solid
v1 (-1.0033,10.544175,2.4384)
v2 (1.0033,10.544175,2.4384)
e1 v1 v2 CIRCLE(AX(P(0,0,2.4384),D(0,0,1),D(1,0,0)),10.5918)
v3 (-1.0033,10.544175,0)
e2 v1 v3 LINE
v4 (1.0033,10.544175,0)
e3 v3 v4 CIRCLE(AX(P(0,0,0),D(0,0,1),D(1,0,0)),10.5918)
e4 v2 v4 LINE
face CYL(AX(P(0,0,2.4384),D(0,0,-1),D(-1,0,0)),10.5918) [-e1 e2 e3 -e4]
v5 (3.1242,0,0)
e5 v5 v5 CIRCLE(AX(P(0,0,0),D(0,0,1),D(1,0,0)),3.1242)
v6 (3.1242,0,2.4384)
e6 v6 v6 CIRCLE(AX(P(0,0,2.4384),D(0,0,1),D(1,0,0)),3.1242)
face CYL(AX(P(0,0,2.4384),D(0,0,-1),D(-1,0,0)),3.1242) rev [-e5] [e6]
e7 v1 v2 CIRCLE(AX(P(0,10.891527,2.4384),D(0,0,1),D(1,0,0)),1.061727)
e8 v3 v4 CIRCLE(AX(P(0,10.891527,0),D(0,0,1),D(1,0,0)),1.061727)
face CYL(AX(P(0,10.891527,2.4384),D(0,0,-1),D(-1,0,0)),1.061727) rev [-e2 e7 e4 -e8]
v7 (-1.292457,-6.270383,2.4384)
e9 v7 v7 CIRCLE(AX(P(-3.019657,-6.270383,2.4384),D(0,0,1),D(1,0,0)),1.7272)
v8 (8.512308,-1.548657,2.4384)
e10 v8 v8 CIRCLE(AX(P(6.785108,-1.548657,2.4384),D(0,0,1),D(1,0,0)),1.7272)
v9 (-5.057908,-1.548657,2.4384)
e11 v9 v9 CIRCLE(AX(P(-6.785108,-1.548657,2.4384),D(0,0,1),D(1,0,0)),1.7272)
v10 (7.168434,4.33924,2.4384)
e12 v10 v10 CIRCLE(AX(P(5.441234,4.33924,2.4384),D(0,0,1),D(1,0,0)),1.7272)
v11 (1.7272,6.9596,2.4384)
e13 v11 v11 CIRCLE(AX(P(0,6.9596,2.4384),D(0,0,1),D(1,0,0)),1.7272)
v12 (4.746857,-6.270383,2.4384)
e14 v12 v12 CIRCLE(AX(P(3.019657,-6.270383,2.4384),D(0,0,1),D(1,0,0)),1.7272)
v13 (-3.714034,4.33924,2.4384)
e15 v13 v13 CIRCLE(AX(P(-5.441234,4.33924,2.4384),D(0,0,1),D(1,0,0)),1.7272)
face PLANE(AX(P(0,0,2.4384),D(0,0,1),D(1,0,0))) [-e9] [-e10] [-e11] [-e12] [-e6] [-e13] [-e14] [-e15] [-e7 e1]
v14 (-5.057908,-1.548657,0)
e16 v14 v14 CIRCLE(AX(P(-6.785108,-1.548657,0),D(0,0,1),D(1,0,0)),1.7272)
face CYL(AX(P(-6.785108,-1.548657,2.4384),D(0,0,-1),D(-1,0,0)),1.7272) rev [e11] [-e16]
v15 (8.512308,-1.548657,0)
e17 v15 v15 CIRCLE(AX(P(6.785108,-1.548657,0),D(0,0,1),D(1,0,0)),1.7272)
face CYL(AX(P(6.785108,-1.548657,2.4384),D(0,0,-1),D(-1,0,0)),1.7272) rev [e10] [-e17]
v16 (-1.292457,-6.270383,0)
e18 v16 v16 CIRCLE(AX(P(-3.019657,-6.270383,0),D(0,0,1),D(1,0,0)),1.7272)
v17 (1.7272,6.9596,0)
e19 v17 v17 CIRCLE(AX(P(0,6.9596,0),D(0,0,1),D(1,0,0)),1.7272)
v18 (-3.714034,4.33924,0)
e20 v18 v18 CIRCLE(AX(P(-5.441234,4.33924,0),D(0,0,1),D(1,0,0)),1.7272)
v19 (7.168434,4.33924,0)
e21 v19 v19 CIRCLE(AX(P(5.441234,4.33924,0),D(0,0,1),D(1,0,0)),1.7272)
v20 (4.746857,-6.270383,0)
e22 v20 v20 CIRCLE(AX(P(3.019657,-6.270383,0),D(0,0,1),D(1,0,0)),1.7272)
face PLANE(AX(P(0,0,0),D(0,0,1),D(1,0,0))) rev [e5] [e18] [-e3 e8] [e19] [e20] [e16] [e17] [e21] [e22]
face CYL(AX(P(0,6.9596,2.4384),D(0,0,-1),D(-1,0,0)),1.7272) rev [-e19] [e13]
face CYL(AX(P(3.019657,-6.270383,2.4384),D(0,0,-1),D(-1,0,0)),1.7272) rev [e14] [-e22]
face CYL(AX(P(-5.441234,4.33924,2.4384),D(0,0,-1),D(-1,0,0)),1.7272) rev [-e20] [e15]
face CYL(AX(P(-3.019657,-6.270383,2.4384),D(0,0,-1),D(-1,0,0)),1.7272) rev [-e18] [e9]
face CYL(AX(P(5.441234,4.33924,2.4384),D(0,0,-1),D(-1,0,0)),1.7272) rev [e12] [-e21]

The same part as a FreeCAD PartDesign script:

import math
import FreeCAD as App
import Part
import Sketcher
from FreeCAD import Vector
Q = App.Units.Quantity

doc = App.newDocument("Part")
body = doc.addObject("PartDesign::Body", "Body")

# Sketch on XY plane
sketch1 = body.newObject("Sketcher::SketchObject", "Sketch")
sketch1.AttachmentSupport = (doc.getObject("XY_Plane"), [""])
sketch1.MapMode = "FlatFace"
sketch1.addGeometry([
    Part.ArcOfCircle(Part.Circle(Vector(0, 0, 0), Vector(0, 0, 1), 10.6), math.radians(95), math.radians(445)),  # 0
    Part.ArcOfCircle(Part.Circle(Vector(0, 10.9, 0), Vector(0, 0, 1), 1.1), math.radians(-161), math.radians(-19)),  # 1
    Part.Circle(Vector(-3, -6.3, 0), Vector(0, 0, 1), 1.7),  # 2
    Part.Circle(Vector(-6.8, -1.5, 0), Vector(0, 0, 1), 1.7),  # 3
    Part.Circle(Vector(3, -6.3, 0), Vector(0, 0, 1), 1.7),  # 4
    Part.Circle(Vector(0, 0, 0), Vector(0, 0, 1), 3.1),  # 5
    Part.Circle(Vector(6.8, -1.5, 0), Vector(0, 0, 1), 1.7),  # 6
    Part.Circle(Vector(-5.4, 4.3, 0), Vector(0, 0, 1), 1.7),  # 7
    Part.Circle(Vector(5.4, 4.3, 0), Vector(0, 0, 1), 1.7),  # 8
    Part.Circle(Vector(0, 7, 0), Vector(0, 0, 1), 1.7),  # 9
], False)
sketch1.addConstraint([
    Sketcher.Constraint("Coincident", 0, 1, 1, 1),
    Sketcher.Constraint("Coincident", 1, 2, 0, 2),
    Sketcher.Constraint("Coincident", 0, 3, -1, 1),
    Sketcher.Constraint("Coincident", 5, 3, -1, 1),
    Sketcher.Constraint("Equal", 2, 3),
    Sketcher.Constraint("Equal", 3, 4),
    Sketcher.Constraint("Equal", 4, 6),
    Sketcher.Constraint("Equal", 6, 7),
    Sketcher.Constraint("Equal", 7, 8),
    Sketcher.Constraint("Equal", 8, 9),
    Sketcher.Constraint("Symmetric", 2, 3, 4, 3, -2),
    Sketcher.Constraint("Symmetric", 3, 3, 6, 3, -2),
    Sketcher.Constraint("Symmetric", 7, 3, 8, 3, -2),
    Sketcher.Constraint("PointOnObject", 1, 3, -2),
    Sketcher.Constraint("PointOnObject", 9, 3, -2),
    Sketcher.Constraint("Diameter", 2, Q("0.136 in")),
    Sketcher.Constraint("Diameter", 5, Q("0.246 in")),
    Sketcher.Constraint("Radius", 0, Q("0.417 in")),
    Sketcher.Constraint("DistanceY", -1, 1, 9, 3, Q("0.274 in")),
    Sketcher.Constraint("DistanceX", 0, 1, 1, 2, Q("0.079 in")),
    Sketcher.Constraint("Radius", 1, Q("1.061727 mm")),
    Sketcher.Constraint("DistanceX", 3, 3, -1, 1, Q("6.785108 mm")),
    Sketcher.Constraint("DistanceY", -1, 1, 7, 3, Q("4.33924 mm")),
    Sketcher.Constraint("DistanceY", 2, 3, 1, 3, Q("17.16191 mm")),
    Sketcher.Constraint("DistanceX", 3, 3, 2, 3, Q("3.765451 mm")),
    Sketcher.Constraint("DistanceX", 7, 3, 8, 3, Q("10.882469 mm")),
    Sketcher.Constraint("DistanceY", 3, 3, -1, 1, Q("1.548657 mm")),
])
pad1 = body.newObject("PartDesign::Pad", "Pad")
pad1.Profile = sketch1
pad1.Length = Q("0.096 in")

doc.recompute()
